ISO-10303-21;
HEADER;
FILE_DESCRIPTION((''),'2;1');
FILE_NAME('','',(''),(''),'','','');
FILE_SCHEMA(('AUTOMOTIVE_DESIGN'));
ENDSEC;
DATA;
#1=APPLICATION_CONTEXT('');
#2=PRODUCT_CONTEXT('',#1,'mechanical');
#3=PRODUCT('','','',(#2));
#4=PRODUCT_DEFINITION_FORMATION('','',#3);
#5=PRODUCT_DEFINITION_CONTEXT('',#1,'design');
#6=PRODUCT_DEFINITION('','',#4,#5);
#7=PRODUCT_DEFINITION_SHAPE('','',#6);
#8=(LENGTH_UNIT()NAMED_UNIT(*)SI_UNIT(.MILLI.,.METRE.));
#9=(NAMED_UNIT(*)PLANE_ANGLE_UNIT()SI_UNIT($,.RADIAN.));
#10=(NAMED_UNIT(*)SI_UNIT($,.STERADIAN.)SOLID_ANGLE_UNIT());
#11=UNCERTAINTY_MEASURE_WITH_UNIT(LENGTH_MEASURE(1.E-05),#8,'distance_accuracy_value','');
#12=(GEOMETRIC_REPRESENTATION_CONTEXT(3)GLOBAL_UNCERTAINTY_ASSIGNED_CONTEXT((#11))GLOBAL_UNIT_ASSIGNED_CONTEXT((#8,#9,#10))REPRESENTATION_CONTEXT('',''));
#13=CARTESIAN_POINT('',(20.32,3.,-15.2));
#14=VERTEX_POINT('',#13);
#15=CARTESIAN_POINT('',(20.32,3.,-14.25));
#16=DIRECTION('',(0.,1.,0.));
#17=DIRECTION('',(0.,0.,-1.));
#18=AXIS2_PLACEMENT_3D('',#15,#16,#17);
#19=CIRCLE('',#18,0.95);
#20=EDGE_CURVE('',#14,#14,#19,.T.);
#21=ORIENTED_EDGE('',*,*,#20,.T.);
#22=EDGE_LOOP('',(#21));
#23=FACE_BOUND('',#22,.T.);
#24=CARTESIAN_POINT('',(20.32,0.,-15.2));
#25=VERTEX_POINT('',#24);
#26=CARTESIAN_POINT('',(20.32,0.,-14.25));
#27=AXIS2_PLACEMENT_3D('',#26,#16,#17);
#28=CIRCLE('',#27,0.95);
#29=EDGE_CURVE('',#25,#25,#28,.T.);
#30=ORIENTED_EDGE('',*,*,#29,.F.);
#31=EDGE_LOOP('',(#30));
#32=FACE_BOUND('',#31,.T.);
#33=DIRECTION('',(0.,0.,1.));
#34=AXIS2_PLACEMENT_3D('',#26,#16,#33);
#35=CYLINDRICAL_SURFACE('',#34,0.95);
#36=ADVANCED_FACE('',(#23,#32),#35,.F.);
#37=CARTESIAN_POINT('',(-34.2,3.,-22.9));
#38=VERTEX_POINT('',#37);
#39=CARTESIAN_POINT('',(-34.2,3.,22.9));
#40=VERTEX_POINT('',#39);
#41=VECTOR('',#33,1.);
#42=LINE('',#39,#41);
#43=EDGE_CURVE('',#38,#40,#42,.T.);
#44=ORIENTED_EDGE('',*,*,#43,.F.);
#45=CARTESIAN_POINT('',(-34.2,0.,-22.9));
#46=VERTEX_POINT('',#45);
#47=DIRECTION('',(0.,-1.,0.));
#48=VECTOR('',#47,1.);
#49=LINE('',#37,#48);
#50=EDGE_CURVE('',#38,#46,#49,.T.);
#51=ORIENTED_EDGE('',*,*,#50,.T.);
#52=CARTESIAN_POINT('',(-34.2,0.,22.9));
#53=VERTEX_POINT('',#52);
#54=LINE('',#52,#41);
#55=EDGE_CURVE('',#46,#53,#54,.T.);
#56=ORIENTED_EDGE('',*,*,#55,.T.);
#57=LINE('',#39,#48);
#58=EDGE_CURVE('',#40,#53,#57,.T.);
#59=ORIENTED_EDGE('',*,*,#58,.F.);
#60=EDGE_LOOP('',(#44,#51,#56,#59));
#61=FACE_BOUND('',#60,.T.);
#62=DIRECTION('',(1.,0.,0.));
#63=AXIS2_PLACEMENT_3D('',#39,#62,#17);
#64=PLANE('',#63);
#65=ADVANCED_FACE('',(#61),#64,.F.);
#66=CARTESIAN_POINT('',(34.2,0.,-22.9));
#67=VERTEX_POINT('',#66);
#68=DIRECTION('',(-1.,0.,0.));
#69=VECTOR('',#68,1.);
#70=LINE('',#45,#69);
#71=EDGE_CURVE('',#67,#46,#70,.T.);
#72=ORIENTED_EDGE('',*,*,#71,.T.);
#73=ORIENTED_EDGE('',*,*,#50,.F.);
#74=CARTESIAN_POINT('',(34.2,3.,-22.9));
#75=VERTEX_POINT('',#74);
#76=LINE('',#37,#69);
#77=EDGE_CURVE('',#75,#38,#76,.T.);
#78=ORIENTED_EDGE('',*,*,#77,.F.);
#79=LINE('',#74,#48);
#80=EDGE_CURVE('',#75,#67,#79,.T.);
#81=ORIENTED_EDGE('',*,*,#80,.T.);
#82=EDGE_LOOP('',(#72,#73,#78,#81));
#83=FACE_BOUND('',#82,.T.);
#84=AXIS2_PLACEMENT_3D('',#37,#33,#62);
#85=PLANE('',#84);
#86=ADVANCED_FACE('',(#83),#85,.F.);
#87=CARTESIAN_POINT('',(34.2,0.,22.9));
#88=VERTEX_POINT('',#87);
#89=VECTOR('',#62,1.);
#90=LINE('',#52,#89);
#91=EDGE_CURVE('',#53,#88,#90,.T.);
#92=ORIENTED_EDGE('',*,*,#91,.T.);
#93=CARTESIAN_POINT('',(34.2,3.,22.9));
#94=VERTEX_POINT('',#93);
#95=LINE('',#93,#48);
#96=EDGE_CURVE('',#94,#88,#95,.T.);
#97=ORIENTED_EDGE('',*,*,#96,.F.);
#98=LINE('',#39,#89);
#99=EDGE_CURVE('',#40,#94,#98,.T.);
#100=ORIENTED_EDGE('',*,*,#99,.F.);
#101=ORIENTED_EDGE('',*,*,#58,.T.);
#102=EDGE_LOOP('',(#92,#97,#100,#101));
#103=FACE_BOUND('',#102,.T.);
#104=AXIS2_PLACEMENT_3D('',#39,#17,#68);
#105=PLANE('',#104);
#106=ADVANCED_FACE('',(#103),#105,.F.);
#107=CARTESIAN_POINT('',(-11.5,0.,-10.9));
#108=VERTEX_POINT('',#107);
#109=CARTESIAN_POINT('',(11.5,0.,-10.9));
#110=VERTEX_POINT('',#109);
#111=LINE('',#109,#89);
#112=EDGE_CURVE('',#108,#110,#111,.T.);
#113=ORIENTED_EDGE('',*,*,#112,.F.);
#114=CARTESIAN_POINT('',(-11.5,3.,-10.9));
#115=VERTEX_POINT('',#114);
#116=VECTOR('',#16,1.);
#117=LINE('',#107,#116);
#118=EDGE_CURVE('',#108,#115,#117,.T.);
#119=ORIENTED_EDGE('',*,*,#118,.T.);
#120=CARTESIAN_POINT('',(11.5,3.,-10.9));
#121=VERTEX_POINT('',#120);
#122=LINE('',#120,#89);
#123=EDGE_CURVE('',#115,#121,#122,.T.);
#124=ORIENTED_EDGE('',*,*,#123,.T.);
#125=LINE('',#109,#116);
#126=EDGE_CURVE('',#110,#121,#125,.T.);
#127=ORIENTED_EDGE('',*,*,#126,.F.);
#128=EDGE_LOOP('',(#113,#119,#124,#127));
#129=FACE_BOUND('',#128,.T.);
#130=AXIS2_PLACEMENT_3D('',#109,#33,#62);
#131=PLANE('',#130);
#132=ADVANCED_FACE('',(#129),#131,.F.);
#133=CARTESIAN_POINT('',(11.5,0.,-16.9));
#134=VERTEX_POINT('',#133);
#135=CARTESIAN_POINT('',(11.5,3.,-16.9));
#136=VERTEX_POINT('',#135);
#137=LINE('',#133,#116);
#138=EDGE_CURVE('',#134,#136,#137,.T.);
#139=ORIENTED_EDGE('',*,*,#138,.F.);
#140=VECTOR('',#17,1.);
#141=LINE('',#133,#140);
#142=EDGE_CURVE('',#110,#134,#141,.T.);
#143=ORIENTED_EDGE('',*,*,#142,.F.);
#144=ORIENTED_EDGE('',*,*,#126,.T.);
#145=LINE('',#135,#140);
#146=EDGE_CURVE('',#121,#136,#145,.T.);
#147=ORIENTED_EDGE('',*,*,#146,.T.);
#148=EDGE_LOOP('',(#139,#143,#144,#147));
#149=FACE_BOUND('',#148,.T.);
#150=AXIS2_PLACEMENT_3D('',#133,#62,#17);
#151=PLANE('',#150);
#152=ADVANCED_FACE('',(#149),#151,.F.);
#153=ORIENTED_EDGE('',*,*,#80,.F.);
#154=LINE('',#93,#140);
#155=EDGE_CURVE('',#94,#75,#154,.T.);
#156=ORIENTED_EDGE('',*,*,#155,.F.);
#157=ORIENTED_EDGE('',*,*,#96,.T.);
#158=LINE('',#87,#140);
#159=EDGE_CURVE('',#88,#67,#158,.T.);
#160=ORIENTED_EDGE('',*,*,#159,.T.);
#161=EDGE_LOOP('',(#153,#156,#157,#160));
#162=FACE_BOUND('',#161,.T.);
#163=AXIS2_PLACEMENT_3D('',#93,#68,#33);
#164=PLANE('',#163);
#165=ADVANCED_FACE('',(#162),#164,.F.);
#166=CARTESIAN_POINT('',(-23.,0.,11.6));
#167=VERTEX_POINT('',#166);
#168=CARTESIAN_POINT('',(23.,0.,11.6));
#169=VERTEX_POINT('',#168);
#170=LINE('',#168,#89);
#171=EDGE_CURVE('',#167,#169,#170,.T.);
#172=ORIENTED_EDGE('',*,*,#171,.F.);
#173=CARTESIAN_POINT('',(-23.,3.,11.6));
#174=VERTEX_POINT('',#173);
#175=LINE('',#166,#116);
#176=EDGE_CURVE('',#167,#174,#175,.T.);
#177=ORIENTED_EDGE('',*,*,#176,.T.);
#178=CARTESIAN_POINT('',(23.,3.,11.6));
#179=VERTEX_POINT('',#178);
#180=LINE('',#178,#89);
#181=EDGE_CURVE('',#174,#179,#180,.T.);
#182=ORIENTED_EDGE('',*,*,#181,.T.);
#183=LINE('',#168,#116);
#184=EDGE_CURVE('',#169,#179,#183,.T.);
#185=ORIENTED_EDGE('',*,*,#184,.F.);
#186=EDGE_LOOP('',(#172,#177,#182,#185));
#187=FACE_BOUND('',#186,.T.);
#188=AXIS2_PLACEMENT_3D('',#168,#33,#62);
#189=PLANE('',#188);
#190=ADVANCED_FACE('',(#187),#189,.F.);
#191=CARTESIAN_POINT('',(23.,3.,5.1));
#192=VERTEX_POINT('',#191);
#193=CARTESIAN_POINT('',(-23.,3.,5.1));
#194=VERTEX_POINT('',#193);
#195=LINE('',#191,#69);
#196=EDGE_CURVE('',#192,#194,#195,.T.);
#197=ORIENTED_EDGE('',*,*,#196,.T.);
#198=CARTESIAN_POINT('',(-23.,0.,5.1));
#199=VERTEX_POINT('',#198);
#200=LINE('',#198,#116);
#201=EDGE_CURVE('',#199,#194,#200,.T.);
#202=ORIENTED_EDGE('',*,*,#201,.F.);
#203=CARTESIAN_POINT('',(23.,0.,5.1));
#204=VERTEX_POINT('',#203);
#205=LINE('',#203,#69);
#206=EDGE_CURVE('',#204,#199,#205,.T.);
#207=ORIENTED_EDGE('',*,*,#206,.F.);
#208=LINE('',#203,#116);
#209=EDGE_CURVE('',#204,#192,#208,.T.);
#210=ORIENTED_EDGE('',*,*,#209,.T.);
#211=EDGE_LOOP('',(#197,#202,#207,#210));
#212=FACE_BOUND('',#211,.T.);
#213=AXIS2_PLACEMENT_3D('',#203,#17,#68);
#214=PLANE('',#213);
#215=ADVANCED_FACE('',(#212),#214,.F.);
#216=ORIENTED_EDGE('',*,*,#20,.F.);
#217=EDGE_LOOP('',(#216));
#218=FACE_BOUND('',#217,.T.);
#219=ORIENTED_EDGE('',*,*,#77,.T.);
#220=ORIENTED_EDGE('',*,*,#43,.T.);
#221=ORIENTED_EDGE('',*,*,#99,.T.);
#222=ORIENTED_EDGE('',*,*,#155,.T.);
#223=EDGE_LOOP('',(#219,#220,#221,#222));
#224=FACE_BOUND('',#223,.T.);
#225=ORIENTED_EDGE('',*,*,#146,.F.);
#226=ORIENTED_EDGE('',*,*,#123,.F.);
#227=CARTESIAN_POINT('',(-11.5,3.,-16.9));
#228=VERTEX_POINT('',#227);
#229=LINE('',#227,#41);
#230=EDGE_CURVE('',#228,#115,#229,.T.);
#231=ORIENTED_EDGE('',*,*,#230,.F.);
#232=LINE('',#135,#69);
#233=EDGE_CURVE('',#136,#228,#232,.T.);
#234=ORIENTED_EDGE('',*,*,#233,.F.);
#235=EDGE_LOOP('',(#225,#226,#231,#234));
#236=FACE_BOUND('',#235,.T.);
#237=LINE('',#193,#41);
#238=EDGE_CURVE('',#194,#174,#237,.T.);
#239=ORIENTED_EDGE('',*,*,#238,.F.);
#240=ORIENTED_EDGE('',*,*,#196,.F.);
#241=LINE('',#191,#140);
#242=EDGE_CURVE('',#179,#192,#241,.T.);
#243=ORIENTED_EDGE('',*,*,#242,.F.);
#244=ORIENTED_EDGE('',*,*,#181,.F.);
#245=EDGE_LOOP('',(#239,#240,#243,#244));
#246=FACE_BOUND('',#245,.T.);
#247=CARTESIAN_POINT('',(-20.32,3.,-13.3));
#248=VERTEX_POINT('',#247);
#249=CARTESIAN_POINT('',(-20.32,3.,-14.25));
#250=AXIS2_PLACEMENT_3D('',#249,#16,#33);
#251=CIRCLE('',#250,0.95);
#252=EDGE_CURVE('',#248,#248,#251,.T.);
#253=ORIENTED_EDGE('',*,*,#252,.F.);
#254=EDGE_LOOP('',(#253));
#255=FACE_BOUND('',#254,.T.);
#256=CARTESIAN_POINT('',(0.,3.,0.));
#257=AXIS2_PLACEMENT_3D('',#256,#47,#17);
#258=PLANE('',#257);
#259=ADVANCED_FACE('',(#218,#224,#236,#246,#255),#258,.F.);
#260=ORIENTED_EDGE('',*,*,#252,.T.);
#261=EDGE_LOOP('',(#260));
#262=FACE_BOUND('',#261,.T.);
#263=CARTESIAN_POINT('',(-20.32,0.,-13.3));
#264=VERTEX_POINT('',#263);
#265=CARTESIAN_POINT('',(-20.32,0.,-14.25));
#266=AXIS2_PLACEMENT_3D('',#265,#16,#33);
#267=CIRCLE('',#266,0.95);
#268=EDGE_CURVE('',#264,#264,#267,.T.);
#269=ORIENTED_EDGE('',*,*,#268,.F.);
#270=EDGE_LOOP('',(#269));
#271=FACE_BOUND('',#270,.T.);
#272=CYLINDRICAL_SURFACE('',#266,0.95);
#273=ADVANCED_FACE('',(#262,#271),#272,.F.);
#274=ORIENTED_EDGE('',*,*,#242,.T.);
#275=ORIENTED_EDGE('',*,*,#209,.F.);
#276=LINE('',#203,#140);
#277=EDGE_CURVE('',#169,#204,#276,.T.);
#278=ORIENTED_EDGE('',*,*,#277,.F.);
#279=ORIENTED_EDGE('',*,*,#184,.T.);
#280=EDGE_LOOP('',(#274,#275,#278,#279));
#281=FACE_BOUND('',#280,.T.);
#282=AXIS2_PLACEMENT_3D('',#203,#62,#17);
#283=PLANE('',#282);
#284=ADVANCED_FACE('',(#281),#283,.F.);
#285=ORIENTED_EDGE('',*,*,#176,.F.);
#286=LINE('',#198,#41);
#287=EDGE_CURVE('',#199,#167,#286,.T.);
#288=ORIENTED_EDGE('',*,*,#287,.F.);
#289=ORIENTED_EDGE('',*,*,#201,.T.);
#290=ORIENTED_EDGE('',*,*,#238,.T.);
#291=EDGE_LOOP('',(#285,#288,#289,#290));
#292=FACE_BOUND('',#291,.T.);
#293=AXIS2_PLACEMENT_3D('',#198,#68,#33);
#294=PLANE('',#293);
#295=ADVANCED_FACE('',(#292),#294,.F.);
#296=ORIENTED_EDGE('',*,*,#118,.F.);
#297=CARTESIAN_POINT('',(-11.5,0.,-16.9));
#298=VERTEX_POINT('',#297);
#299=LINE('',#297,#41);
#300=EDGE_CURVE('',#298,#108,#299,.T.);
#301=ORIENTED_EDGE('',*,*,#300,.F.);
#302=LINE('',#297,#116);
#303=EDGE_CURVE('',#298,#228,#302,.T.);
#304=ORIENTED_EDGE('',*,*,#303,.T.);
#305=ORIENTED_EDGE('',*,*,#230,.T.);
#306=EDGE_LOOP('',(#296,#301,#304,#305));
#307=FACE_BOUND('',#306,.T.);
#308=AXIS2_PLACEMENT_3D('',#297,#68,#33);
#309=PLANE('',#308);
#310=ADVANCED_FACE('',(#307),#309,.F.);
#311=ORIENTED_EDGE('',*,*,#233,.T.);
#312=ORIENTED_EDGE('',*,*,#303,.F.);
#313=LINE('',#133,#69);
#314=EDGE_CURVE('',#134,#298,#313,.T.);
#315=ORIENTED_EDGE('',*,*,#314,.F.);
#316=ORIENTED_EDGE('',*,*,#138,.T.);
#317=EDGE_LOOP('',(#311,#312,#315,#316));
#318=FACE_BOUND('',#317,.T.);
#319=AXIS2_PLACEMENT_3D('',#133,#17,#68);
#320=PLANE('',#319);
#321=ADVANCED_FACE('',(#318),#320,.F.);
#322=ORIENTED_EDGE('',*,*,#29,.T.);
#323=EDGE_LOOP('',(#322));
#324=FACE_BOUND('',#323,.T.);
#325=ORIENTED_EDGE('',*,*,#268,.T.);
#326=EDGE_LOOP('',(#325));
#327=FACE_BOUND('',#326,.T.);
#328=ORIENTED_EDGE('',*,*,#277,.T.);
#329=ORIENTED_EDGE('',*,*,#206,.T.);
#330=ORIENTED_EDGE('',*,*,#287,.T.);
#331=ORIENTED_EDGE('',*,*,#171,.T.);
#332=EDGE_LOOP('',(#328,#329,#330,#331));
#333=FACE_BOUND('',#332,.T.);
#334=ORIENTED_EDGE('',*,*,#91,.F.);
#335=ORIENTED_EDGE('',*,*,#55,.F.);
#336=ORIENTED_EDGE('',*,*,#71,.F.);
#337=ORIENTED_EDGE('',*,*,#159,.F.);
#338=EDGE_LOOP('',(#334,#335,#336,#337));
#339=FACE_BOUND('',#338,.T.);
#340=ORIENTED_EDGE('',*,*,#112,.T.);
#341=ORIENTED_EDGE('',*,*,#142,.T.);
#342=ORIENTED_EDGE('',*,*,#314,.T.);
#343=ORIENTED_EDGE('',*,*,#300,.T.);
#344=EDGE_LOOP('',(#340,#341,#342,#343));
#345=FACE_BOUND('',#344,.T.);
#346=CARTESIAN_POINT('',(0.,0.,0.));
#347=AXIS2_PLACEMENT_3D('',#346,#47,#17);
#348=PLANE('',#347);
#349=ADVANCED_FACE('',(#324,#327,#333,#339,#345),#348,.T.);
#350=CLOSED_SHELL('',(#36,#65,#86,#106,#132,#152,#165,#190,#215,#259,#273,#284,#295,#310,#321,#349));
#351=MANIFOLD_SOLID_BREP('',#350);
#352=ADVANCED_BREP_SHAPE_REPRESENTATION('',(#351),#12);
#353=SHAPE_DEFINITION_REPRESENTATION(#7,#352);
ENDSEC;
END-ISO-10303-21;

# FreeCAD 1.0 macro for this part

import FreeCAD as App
import Part
import Sketcher

V = App.Vector


def add_polygon(sketch, points):
    """Adds a closed chain of lines whose ends are joined by coincident constraints."""
    first, n = sketch.GeometryCount, len(points)
    for a, b in zip(points, points[1:] + points[:1]):
        sketch.addGeometry(Part.LineSegment(App.Vector(*a, 0), App.Vector(*b, 0)), False)
    for i in range(n):
        sketch.addConstraint(Sketcher.Constraint("Coincident", first + i, 2, first + (i + 1) % n, 1))

doc = App.newDocument("Part")
body = doc.addObject("PartDesign::Body", "Body")

sketch1 = doc.addObject("Sketcher::SketchObject", "Sketch")
body.addObject(sketch1)
sketch1.AttachmentSupport = (doc.XZ_Plane, [""])
sketch1.MapMode = "FlatFace"
add_polygon(sketch1, [(-34.2, -22.9), (-34.2, 22.9), (34.2, 22.9), (34.2, -22.9)])
sketch1.addConstraint([
    Sketcher.Constraint("Vertical", 0),
    Sketcher.Constraint("Horizontal", 1),
    Sketcher.Constraint("Vertical", 2),
    Sketcher.Constraint("Horizontal", 3),
    Sketcher.Constraint("Symmetric", 0, 2, 2, 2, -1, 1),
    Sketcher.Constraint("DistanceX", 1, 1, 1, 2, 68.4),
    Sketcher.Constraint("DistanceY", 0, 1, 0, 2, 45.8),
])
pad1 = doc.addObject("PartDesign::Pad", "Pad")
body.addObject(pad1)
pad1.Profile = sketch1
pad1.Length = 3
pad1.Reversed = True

sketch2 = doc.addObject("Sketcher::SketchObject", "Sketch001")
body.addObject(sketch2)
sketch2.AttachmentSupport = (doc.XZ_Plane, [""])
sketch2.MapMode = "FlatFace"
sketch2.AttachmentOffset = App.Placement(V(0, 0, -3), App.Rotation())
sketch2.addGeometry([
    Part.Circle(V(-20.32, -14.25, 0), V(0, 0, 1), 0.95),
    Part.Circle(V(20.32, -14.25, 0), V(0, 0, 1), 0.95),
], False)
sketch2.addConstraint([
    Sketcher.Constraint("Equal", 0, 1),
    Sketcher.Constraint("Symmetric", 0, 3, 1, 3, -2),
    Sketcher.Constraint("Diameter", 0, 1.9),
    Sketcher.Constraint("DistanceX", 0, 3, -1, 1, 20.32),
    Sketcher.Constraint("DistanceY", 0, 3, -1, 1, 14.25),
])
pocket1 = doc.addObject("PartDesign::Pocket", "Pocket")
body.addObject(pocket1)
pocket1.Profile = sketch2
pocket1.Type = "ThroughAll"
pocket1.Reversed = True

sketch3 = doc.addObject("Sketcher::SketchObject", "Sketch002")
body.addObject(sketch3)
sketch3.AttachmentSupport = (doc.XZ_Plane, [""])
sketch3.MapMode = "FlatFace"
sketch3.AttachmentOffset = App.Placement(V(0, 0, -3), App.Rotation())
add_polygon(sketch3, [(-11.5, -16.9), (-11.5, -10.9), (11.5, -10.9), (11.5, -16.9)])
add_polygon(sketch3, [(-23, 5.1), (-23, 11.6), (23, 11.6), (23, 5.1)])
sketch3.addConstraint([
    Sketcher.Constraint("Vertical", 0),
    Sketcher.Constraint("Horizontal", 1),
    Sketcher.Constraint("Vertical", 2),
    Sketcher.Constraint("Horizontal", 3),
    Sketcher.Constraint("Vertical", 4),
    Sketcher.Constraint("Horizontal", 5),
    Sketcher.Constraint("Vertical", 6),
    Sketcher.Constraint("Horizontal", 7),
    Sketcher.Constraint("DistanceX", 1, 1, 1, 2, 23.0),
    Sketcher.Constraint("DistanceX", 5, 1, 5, 2, 46.0),
    Sketcher.Constraint("DistanceY", 0, 1, 0, 2, 6.0),
    Sketcher.Constraint("DistanceY", 4, 1, 4, 2, 6.5),
    Sketcher.Constraint("DistanceX", 4, 2, -1, 1, 23.0),
    Sketcher.Constraint("DistanceY", 1, 2, 6, 2, 16.0),
    Sketcher.Constraint("DistanceX", 0, 2, -1, 1, 11.5),
    Sketcher.Constraint("DistanceY", 0, 2, -1, 1, 10.9),
])
pocket2 = doc.addObject("PartDesign::Pocket", "Pocket001")
body.addObject(pocket2)
pocket2.Profile = sketch3
pocket2.Type = "ThroughAll"
pocket2.Reversed = True

doc.recompute()
